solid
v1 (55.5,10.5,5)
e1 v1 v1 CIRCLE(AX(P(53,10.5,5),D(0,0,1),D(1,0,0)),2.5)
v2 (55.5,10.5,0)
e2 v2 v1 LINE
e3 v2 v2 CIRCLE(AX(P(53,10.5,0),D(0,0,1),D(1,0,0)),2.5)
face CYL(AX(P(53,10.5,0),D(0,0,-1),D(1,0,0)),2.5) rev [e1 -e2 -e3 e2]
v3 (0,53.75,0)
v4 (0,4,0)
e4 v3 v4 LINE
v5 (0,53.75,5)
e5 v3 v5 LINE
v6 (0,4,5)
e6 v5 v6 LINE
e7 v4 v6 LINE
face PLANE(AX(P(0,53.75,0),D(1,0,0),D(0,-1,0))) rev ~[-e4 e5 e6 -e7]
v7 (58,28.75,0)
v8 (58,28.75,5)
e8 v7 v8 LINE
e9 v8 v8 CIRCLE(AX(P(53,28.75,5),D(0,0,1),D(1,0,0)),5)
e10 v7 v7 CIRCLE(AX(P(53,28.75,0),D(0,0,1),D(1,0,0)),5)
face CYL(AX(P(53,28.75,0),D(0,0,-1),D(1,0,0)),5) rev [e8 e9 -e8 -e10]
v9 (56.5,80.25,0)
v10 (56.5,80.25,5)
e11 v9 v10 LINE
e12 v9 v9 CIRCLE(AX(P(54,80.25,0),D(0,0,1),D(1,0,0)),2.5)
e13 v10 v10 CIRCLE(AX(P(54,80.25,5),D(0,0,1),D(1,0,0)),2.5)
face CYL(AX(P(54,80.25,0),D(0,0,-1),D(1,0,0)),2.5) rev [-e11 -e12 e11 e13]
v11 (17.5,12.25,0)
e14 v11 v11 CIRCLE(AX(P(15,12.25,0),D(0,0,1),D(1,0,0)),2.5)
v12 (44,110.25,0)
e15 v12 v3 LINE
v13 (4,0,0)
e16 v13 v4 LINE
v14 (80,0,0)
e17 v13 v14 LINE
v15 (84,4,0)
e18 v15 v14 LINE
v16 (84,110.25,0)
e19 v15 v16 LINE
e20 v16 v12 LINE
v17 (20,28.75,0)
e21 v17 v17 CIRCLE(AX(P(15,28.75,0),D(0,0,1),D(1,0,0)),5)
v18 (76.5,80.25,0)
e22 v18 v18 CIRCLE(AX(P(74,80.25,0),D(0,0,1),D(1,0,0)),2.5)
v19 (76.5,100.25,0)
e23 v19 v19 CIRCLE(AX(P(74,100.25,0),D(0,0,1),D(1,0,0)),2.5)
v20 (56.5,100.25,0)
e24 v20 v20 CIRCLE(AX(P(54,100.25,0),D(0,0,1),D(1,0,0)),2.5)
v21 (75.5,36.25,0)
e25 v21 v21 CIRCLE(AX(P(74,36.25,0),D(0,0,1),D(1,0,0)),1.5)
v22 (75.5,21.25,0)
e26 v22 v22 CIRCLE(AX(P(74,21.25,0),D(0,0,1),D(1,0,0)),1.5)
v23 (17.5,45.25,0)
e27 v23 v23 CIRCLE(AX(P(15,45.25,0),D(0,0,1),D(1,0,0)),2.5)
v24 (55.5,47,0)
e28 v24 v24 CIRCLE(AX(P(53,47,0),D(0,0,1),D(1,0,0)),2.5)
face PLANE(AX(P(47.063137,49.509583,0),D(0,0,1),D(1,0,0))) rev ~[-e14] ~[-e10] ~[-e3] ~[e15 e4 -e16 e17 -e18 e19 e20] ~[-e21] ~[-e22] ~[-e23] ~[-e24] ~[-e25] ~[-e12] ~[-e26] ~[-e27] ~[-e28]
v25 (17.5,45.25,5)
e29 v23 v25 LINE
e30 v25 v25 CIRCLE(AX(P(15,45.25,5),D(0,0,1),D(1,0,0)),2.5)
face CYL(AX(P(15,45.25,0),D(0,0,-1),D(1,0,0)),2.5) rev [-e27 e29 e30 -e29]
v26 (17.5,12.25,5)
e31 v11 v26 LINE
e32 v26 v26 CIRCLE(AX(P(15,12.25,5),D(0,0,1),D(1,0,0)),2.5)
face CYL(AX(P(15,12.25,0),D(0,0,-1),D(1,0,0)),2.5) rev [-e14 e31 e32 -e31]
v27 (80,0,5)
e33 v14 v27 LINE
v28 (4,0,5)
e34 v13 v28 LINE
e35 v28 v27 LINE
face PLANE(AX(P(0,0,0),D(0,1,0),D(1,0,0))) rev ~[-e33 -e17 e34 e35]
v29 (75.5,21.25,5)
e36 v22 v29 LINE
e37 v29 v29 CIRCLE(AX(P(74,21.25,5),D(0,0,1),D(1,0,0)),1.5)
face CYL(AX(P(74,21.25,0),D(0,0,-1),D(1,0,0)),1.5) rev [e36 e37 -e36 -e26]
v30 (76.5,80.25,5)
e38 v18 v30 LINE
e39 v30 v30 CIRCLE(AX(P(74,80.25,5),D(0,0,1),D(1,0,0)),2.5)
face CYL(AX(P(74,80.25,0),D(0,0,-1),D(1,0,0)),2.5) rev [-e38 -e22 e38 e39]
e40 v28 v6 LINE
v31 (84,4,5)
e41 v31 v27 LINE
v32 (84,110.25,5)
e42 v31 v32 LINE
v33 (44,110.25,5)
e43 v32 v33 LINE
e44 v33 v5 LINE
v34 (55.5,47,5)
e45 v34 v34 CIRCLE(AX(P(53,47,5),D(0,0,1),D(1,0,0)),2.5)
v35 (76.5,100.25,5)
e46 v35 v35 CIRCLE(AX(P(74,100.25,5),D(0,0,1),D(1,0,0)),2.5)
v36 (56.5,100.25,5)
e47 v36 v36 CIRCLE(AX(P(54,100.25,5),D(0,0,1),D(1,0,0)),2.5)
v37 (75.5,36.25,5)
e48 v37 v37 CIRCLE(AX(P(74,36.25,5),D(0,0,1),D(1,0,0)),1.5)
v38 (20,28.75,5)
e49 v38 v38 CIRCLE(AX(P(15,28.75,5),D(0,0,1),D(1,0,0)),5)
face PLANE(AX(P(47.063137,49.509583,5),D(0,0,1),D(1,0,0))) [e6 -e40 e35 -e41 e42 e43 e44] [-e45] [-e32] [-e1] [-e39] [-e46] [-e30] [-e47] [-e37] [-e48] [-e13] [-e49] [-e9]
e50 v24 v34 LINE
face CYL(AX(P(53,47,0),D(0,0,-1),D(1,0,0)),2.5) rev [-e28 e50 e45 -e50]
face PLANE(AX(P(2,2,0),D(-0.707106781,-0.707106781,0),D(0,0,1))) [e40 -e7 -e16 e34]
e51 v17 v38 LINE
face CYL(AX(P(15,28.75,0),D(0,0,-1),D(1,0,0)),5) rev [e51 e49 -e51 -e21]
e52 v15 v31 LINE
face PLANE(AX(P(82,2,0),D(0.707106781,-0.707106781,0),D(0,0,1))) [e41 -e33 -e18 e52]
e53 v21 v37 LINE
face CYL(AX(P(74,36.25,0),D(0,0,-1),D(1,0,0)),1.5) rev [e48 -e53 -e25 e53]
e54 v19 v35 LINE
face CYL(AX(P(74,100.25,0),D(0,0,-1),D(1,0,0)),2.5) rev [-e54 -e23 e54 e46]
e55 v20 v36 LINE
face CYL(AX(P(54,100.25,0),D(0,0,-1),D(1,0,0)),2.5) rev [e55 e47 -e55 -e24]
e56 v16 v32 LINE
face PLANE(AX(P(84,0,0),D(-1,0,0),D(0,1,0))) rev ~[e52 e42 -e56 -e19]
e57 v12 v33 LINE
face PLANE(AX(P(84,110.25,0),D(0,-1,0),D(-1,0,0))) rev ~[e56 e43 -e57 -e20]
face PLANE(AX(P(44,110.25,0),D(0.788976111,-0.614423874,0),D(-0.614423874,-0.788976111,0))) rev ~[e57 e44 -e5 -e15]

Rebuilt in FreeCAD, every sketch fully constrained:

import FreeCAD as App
import Part
import Sketcher
from FreeCAD import Vector


def edges_at(feature, points):
    """Names of the edges that pass closest to the given points."""
    edges = feature.Shape.Edges
    near = lambda p: min(range(len(edges)), key=lambda i: edges[i].distToShape(Part.Vertex(*p))[0])
    return sorted({f"Edge{near(p) + 1}" for p in points})

doc = App.newDocument("Part")
body = doc.addObject("PartDesign::Body", "Body")

sketch1 = body.newObject("Sketcher::SketchObject", "Sketch")
sketch1.AttachmentSupport = (doc.getObject("XY_Plane"), [""])
sketch1.MapMode = "FlatFace"
sketch1.addGeometry([
    Part.LineSegment(Vector(84, 110.2, 0), Vector(44, 110.2, 0)),
    Part.LineSegment(Vector(44, 110.2, 0), Vector(0, 53.8, 0)),
    Part.LineSegment(Vector(0, 53.8, 0), Vector(0, 0, 0)),
    Part.LineSegment(Vector(0, 0, 0), Vector(84, 0, 0)),
    Part.LineSegment(Vector(84, 0, 0), Vector(84, 110.2, 0)),
    Part.Circle(Vector(15, 12.2, 0), Vector(0, 0, 1), 2.5),
    Part.Circle(Vector(15, 28.8, 0), Vector(0, 0, 1), 5),
    Part.Circle(Vector(15, 45.2, 0), Vector(0, 0, 1), 2.5),
    Part.Circle(Vector(53, 10.5, 0), Vector(0, 0, 1), 2.5),
    Part.Circle(Vector(53, 28.8, 0), Vector(0, 0, 1), 5),
    Part.Circle(Vector(74, 21.2, 0), Vector(0, 0, 1), 1.5),
    Part.Circle(Vector(53, 47, 0), Vector(0, 0, 1), 2.5),
    Part.Circle(Vector(74, 36.2, 0), Vector(0, 0, 1), 1.5),
    Part.Circle(Vector(54, 80.2, 0), Vector(0, 0, 1), 2.5),
    Part.Circle(Vector(54, 100.2, 0), Vector(0, 0, 1), 2.5),
    Part.Circle(Vector(74, 80.2, 0), Vector(0, 0, 1), 2.5),
    Part.Circle(Vector(74, 100.2, 0), Vector(0, 0, 1), 2.5),
], False)
sketch1.addConstraint([
    Sketcher.Constraint("Coincident", 0, 2, 1, 1),
    Sketcher.Constraint("Coincident", 1, 2, 2, 1),
    Sketcher.Constraint("Coincident", 2, 2, 3, 1),
    Sketcher.Constraint("Coincident", 3, 2, 4, 1),
    Sketcher.Constraint("Coincident", 4, 2, 0, 1),
    Sketcher.Constraint("Horizontal", 0),
    Sketcher.Constraint("Vertical", 2),
    Sketcher.Constraint("Horizontal", 3),
    Sketcher.Constraint("Vertical", 4),
    Sketcher.Constraint("Coincident", 2, 2, -1, 1),
    Sketcher.Constraint("Equal", 5, 7),
    Sketcher.Constraint("Equal", 7, 8),
    Sketcher.Constraint("Equal", 6, 9),
    Sketcher.Constraint("Equal", 8, 11),
    Sketcher.Constraint("Equal", 10, 12),
    Sketcher.Constraint("Equal", 11, 13),
    Sketcher.Constraint("Equal", 13, 14),
    Sketcher.Constraint("Equal", 14, 15),
    Sketcher.Constraint("Equal", 15, 16),
    Sketcher.Constraint("Horizontal", 6, 3, 9, 3),
    Sketcher.Constraint("Horizontal", 13, 3, 15, 3),
    Sketcher.Constraint("Horizontal", 14, 3, 16, 3),
    Sketcher.Constraint("Vertical", 5, 3, 6, 3),
    Sketcher.Constraint("Vertical", 6, 3, 7, 3),
    Sketcher.Constraint("Vertical", 8, 3, 9, 3),
    Sketcher.Constraint("Vertical", 9, 3, 11, 3),
    Sketcher.Constraint("Vertical", 10, 3, 12, 3),
    Sketcher.Constraint("Vertical", 13, 3, 14, 3),
    Sketcher.Constraint("Vertical", 12, 3, 15, 3),
    Sketcher.Constraint("Vertical", 15, 3, 16, 3),
    Sketcher.Constraint("Diameter", 5, 5.0),
    Sketcher.Constraint("Diameter", 6, 10.0),
    Sketcher.Constraint("Diameter", 10, 3.0),
    Sketcher.Constraint("DistanceX", 0, 2, 0, 1, 40.0),
    Sketcher.Constraint("DistanceX", 3, 1, 3, 2, 84.0),
    Sketcher.Constraint("DistanceX", -1, 1, 5, 3, 15.0),
    Sketcher.Constraint("DistanceX", -1, 1, 8, 3, 53.0),
    Sketcher.Constraint("DistanceX", -1, 1, 10, 3, 74.0),
    Sketcher.Constraint("DistanceY", -1, 1, 11, 3, 47.0),
    Sketcher.Constraint("DistanceX", -1, 1, 13, 3, 54.0),
    Sketcher.Constraint("DistanceY", 5, 3, 7, 3, 33.0),
    Sketcher.Constraint("DistanceY", 5, 3, 10, 3, 9.0),
    Sketcher.Constraint("DistanceY", 10, 3, 12, 3, 15.0),
    Sketcher.Constraint("DistanceY", 12, 3, 13, 3, 44.0),
    Sketcher.Constraint("DistanceY", 13, 3, 14, 3, 20.0),
    Sketcher.Constraint("DistanceY", 14, 3, 0, 2, 10.0),
    Sketcher.Constraint("DistanceY", 6, 3, 1, 2, 25.0),
    Sketcher.Constraint("DistanceY", 2, 2, 2, 1, 53.75),
    Sketcher.Constraint("DistanceY", 4, 1, 4, 2, 110.25),
    Sketcher.Constraint("DistanceY", -1, 1, 8, 3, 10.5),
])
pad1 = body.newObject("PartDesign::Pad", "Pad")
pad1.Profile = sketch1
pad1.Length = 5
doc.recompute()

chamfer = body.newObject("PartDesign::Chamfer", "Chamfer")
chamfer.Base = (pad1, edges_at(pad1, [(0, 0, 2.5), (84, 0, 2.5)]))
chamfer.Size = 4

doc.recompute()
